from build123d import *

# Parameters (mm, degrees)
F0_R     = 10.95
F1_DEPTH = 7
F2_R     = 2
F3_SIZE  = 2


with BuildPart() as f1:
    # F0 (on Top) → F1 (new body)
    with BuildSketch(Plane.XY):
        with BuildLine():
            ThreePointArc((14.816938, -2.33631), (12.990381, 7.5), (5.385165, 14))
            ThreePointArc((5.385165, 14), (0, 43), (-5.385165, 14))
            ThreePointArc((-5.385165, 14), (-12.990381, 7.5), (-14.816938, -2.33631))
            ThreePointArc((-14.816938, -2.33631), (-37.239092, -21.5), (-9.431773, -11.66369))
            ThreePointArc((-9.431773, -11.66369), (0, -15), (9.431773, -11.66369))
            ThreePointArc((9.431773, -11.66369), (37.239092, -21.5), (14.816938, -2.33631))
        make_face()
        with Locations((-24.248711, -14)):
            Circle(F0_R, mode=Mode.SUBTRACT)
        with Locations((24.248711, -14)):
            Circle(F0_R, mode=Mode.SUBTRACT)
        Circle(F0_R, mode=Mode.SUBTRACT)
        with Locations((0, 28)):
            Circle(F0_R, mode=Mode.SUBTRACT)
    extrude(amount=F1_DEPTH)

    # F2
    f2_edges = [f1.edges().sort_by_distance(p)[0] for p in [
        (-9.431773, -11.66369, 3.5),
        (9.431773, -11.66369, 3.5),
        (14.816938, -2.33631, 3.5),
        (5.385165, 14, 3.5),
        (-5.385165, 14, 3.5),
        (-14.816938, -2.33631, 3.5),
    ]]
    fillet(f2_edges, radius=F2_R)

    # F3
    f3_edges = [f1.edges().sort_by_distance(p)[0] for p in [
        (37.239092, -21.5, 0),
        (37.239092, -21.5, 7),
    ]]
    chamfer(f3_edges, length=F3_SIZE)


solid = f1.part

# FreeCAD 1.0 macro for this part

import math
import FreeCAD as App
import Part
import Sketcher


def edges_at(feature, points):
    """Names of the edges that pass closest to the given points."""
    edges = feature.Shape.Edges
    near = lambda p: min(range(len(edges)), key=lambda i: edges[i].distToShape(Part.Vertex(*p))[0])
    return sorted({f"Edge{near(p) + 1}" for p in points})

doc = App.newDocument("Part")
body = doc.addObject("PartDesign::Body", "Body")

# Sketch on XY plane
sketch1 = doc.addObject("Sketcher::SketchObject", "Sketch")
body.addObject(sketch1)
sketch1.AttachmentSupport = (doc.XY_Plane, [""])
sketch1.MapMode = "FlatFace"
sketch1.addGeometry([
    Part.ArcOfCircle(Part.Circle(App.Vector(0, 0, 0), App.Vector(0, 0, 1), 15), math.radians(-9), math.radians(69)),  # 0
    Part.ArcOfCircle(Part.Circle(App.Vector(0, 28, 0), App.Vector(0, 0, 1), 15), math.radians(-69), math.radians(249)),  # 1
    Part.ArcOfCircle(Part.Circle(App.Vector(0, 0, 0), App.Vector(0, 0, 1), 15), math.radians(111), math.radians(189)),  # 2
    Part.ArcOfCircle(Part.Circle(App.Vector(-24, -14, 0), App.Vector(0, 0, 1), 15), math.radians(51), math.radians(369)),  # 3
    Part.ArcOfCircle(Part.Circle(App.Vector(0, 0, 0), App.Vector(0, 0, 1), 15), math.radians(-129), math.radians(-51)),  # 4
    Part.ArcOfCircle(Part.Circle(App.Vector(24, -14, 0), App.Vector(0, 0, 1), 15), math.radians(171), math.radians(489)),  # 5
    Part.Circle(App.Vector(-24, -14, 0), App.Vector(0, 0, 1), 11),  # 6
    Part.Circle(App.Vector(24, -14, 0), App.Vector(0, 0, 1), 11),  # 7
    Part.Circle(App.Vector(0, 0, 0), App.Vector(0, 0, 1), 11),  # 8
    Part.Circle(App.Vector(0, 28, 0), App.Vector(0, 0, 1), 11),  # 9
], False)
sketch1.addConstraint([
    Sketcher.Constraint("Coincident", 0, 2, 1, 1),
    Sketcher.Constraint("Coincident", 1, 2, 2, 1),
    Sketcher.Constraint("Coincident", 2, 2, 3, 1),
    Sketcher.Constraint("Coincident", 3, 2, 4, 1),
    Sketcher.Constraint("Coincident", 4, 2, 5, 1),
    Sketcher.Constraint("Coincident", 5, 2, 0, 1),
    Sketcher.Constraint("Coincident", 0, 3, -1, 1),
    Sketcher.Constraint("Coincident", 2, 3, -1, 1),
    Sketcher.Constraint("Coincident", 4, 3, -1, 1),
    Sketcher.Constraint("Coincident", 8, 3, -1, 1),
    Sketcher.Constraint("Coincident", 6, 3, 3, 3),
    Sketcher.Constraint("Coincident", 7, 3, 5, 3),
    Sketcher.Constraint("Coincident", 9, 3, 1, 3),
    Sketcher.Constraint("Equal", 0, 1),
    Sketcher.Constraint("Equal", 1, 2),
    Sketcher.Constraint("Equal", 2, 3),
    Sketcher.Constraint("Equal", 3, 4),
    Sketcher.Constraint("Equal", 4, 5),
    Sketcher.Constraint("Equal", 6, 7),
    Sketcher.Constraint("Equal", 7, 8),
    Sketcher.Constraint("Equal", 8, 9),
    Sketcher.Constraint("Symmetric", 3, 3, 5, 3, -2),
    Sketcher.Constraint("PointOnObject", 1, 3, -2),
    Sketcher.Constraint("Radius", 0, 15.0),
    Sketcher.Constraint("Diameter", 6, 21.9),
    Sketcher.Constraint("DistanceY", -1, 1, 1, 3, 28.0),
    Sketcher.Constraint("DistanceY", 3, 3, -1, 1, 14.0),
    Sketcher.Constraint("DistanceX", 3, 3, -1, 1, 24.248711),
])
pad1 = doc.addObject("PartDesign::Pad", "Pad")
body.addObject(pad1)
pad1.Profile = sketch1
pad1.Length = 7
doc.recompute()

fillet = doc.addObject("PartDesign::Fillet", "Fillet")
body.addObject(fillet)
fillet.Base = (pad1, edges_at(pad1, [
    (-9.432, -11.664, 3.5),
    (9.432, -11.664, 3.5),
    (14.817, -2.336, 3.5),
    (5.385, 14, 3.5),
    (-5.385, 14, 3.5),
    (-14.817, -2.336, 3.5),
]))
fillet.Radius = 2
doc.recompute()

chamfer = doc.addObject("PartDesign::Chamfer", "Chamfer")
body.addObject(chamfer)
chamfer.Base = (fillet, edges_at(fillet, [(37.239, -21.5, 0), (37.239, -21.5, 7)]))
chamfer.Size = 2

doc.recompute()
